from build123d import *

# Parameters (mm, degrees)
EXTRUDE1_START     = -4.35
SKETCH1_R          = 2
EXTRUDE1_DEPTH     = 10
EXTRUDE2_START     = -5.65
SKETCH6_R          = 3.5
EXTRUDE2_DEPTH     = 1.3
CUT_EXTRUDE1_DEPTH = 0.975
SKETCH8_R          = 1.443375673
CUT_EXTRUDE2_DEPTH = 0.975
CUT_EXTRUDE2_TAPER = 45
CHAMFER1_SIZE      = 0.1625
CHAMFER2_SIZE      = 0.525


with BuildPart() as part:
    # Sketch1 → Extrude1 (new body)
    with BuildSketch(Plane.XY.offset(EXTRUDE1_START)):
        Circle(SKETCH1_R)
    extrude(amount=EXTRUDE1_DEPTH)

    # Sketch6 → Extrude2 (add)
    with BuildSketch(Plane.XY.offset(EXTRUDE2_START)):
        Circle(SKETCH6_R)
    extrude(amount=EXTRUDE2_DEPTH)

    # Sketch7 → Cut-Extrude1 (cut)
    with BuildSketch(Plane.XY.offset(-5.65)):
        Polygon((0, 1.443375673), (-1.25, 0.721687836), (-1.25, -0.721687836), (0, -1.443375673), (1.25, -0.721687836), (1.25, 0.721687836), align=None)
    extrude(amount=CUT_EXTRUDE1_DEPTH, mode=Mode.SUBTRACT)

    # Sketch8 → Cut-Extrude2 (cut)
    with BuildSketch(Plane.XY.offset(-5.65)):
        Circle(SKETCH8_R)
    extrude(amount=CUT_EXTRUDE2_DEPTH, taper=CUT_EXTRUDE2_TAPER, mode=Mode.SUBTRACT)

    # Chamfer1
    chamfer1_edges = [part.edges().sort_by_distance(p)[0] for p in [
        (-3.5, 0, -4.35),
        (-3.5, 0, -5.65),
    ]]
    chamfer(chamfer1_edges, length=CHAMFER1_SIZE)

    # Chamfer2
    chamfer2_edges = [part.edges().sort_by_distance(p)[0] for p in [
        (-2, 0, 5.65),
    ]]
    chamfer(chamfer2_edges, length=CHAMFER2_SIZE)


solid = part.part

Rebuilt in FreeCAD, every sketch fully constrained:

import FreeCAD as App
import Part
import Sketcher
Q = App.Units.Quantity


def edges_at(feature, points):
    """Names of the edges that pass closest to the given points."""
    edges = feature.Shape.Edges
    near = lambda p: min(range(len(edges)), key=lambda i: edges[i].distToShape(Part.Vertex(*p))[0])
    return sorted({f"Edge{near(p) + 1}" for p in points})

doc = App.newDocument("Part")
params = doc.addObject("Spreadsheet::Sheet", "Params")
for row, (alias, value) in enumerate([
    ("sketch1_diameter", "4 mm"),
    ("pad1_length", "10 mm"),
    ("sketch2_diameter", "7 mm"),
    ("pad2_length", "1.3 mm"),
    ("pocket1_length", "0.975 mm"),
    ("pocket2_length", "0.975 mm"),
    ("pocket2_taper", "-45 deg"),
    ("chamfer_size", "0.1625 mm"),
    ("chamfer2_size", "0.525 mm"),
], start=1):
    params.set(f"A{row}", alias)
    params.set(f"B{row}", "=" + value)
    params.setAlias(f"B{row}", alias)

body = doc.addObject("PartDesign::Body", "Body")

sketch1 = doc.addObject("Sketcher::SketchObject", "Sketch")
body.addObject(sketch1)
sketch1.AttachmentSupport = (doc.XY_Plane, [""])
sketch1.MapMode = "FlatFace"
sketch1.AttachmentOffset = App.Placement(App.Vector(0, 0, -4.35), App.Rotation())
sketch1.addGeometry(Part.Circle(App.Vector(0, 0, 0), App.Vector(0, 0, 1), 2), False)
sketch1.addConstraint(Sketcher.Constraint("Coincident", 0, 3, -1, 1))
sketch1.addConstraint(Sketcher.Constraint("Diameter", 0, 4.0))
sketch1.setExpression("Constraints[1]", "Params.sketch1_diameter")
pad1 = doc.addObject("PartDesign::Pad", "Pad")
body.addObject(pad1)
pad1.Profile = sketch1
pad1.setExpression("Length", "Params.pad1_length")

sketch2 = doc.addObject("Sketcher::SketchObject", "Sketch001")
body.addObject(sketch2)
sketch2.AttachmentSupport = (doc.XY_Plane, [""])
sketch2.MapMode = "FlatFace"
sketch2.AttachmentOffset = App.Placement(App.Vector(0, 0, -5.65), App.Rotation())
sketch2.addGeometry(Part.Circle(App.Vector(0, 0, 0), App.Vector(0, 0, 1), 3.5), False)
sketch2.addConstraint(Sketcher.Constraint("Coincident", 0, 3, -1, 1))
sketch2.addConstraint(Sketcher.Constraint("Diameter", 0, 7.0))
sketch2.setExpression("Constraints[1]", "Params.sketch2_diameter")
pad2 = doc.addObject("PartDesign::Pad", "Pad001")
body.addObject(pad2)
pad2.Profile = sketch2
pad2.setExpression("Length", "Params.pad2_length")

sketch3 = doc.addObject("Sketcher::SketchObject", "Sketch002")
body.addObject(sketch3)
sketch3.AttachmentSupport = (doc.XY_Plane, [""])
sketch3.MapMode = "FlatFace"
sketch3.AttachmentOffset = App.Placement(App.Vector(0, 0, -5.65), App.Rotation())
sketch3.addGeometry(Part.LineSegment(App.Vector(0, 1.4, 0), App.Vector(-1.2, 0.7, 0)), False)
sketch3.addGeometry(Part.LineSegment(App.Vector(-1.2, 0.7, 0), App.Vector(-1.2, -0.7, 0)), False)
sketch3.addGeometry(Part.LineSegment(App.Vector(-1.2, -0.7, 0), App.Vector(0, -1.4, 0)), False)
sketch3.addGeometry(Part.LineSegment(App.Vector(0, -1.4, 0), App.Vector(1.2, -0.7, 0)), False)
sketch3.addGeometry(Part.LineSegment(App.Vector(1.2, -0.7, 0), App.Vector(1.2, 0.7, 0)), False)
sketch3.addGeometry(Part.LineSegment(App.Vector(1.2, 0.7, 0), App.Vector(0, 1.4, 0)), False)
sketch3.addConstraint(Sketcher.Constraint("Coincident", 0, 2, 1, 1))
sketch3.addConstraint(Sketcher.Constraint("Coincident", 1, 2, 2, 1))
sketch3.addConstraint(Sketcher.Constraint("Coincident", 2, 2, 3, 1))
sketch3.addConstraint(Sketcher.Constraint("Coincident", 3, 2, 4, 1))
sketch3.addConstraint(Sketcher.Constraint("Coincident", 4, 2, 5, 1))
sketch3.addConstraint(Sketcher.Constraint("Coincident", 5, 2, 0, 1))
sketch3.addConstraint(Sketcher.Constraint("Vertical", 1))
sketch3.addConstraint(Sketcher.Constraint("Vertical", 4))
sketch3.addConstraint(Sketcher.Constraint("Symmetric", 0, 2, 3, 2, -1, 1))
sketch3.addConstraint(Sketcher.Constraint("Symmetric", 2, 2, 5, 2, -1, 1))
sketch3.addConstraint(Sketcher.Constraint("PointOnObject", 2, 2, -2))
sketch3.addConstraint(Sketcher.Constraint("Parallel", 2, 5))
sketch3.addConstraint(Sketcher.Constraint("Horizontal", 1, 2, 3, 2))
sketch3.addConstraint(Sketcher.Constraint("Angle", 0, Q("-150 deg")))
sketch3.addConstraint(Sketcher.Constraint("DistanceX", 1, 2, 3, 2, 2.5))
sketch3.addConstraint(Sketcher.Constraint("DistanceY", 1, 2, 1, 1, 1.443376))
pocket1 = doc.addObject("PartDesign::Pocket", "Pocket")
body.addObject(pocket1)
pocket1.Profile = sketch3
pocket1.setExpression("Length", "Params.pocket1_length")
pocket1.Reversed = True

sketch4 = doc.addObject("Sketcher::SketchObject", "Sketch003")
body.addObject(sketch4)
sketch4.AttachmentSupport = (doc.XY_Plane, [""])
sketch4.MapMode = "FlatFace"
sketch4.AttachmentOffset = App.Placement(App.Vector(0, 0, -5.65), App.Rotation())
sketch4.addGeometry(Part.Circle(App.Vector(0, 0, 0), App.Vector(0, 0, 1), 1.4), False)
sketch4.addConstraint(Sketcher.Constraint("Coincident", 0, 3, -1, 1))
sketch4.addConstraint(Sketcher.Constraint("Diameter", 0, 2.886751))
pocket2 = doc.addObject("PartDesign::Pocket", "Pocket001")
body.addObject(pocket2)
pocket2.Profile = sketch4
pocket2.setExpression("Length", "Params.pocket2_length")
pocket2.Reversed = True
pocket2.setExpression("TaperAngle", "Params.pocket2_taper")
doc.recompute()

chamfer = doc.addObject("PartDesign::Chamfer", "Chamfer")
body.addObject(chamfer)
chamfer.Base = (pocket2, edges_at(pocket2, [(-3.5, 0, -4.35), (-3.5, 0, -5.65)]))
chamfer.setExpression("Size", "Params.chamfer_size")
doc.recompute()

chamfer2 = doc.addObject("PartDesign::Chamfer", "Chamfer001")
body.addObject(chamfer2)
chamfer2.Base = (chamfer, edges_at(chamfer, [(-2, 0, 5.65)]))
chamfer2.setExpression("Size", "Params.chamfer2_size")

doc.recompute()
